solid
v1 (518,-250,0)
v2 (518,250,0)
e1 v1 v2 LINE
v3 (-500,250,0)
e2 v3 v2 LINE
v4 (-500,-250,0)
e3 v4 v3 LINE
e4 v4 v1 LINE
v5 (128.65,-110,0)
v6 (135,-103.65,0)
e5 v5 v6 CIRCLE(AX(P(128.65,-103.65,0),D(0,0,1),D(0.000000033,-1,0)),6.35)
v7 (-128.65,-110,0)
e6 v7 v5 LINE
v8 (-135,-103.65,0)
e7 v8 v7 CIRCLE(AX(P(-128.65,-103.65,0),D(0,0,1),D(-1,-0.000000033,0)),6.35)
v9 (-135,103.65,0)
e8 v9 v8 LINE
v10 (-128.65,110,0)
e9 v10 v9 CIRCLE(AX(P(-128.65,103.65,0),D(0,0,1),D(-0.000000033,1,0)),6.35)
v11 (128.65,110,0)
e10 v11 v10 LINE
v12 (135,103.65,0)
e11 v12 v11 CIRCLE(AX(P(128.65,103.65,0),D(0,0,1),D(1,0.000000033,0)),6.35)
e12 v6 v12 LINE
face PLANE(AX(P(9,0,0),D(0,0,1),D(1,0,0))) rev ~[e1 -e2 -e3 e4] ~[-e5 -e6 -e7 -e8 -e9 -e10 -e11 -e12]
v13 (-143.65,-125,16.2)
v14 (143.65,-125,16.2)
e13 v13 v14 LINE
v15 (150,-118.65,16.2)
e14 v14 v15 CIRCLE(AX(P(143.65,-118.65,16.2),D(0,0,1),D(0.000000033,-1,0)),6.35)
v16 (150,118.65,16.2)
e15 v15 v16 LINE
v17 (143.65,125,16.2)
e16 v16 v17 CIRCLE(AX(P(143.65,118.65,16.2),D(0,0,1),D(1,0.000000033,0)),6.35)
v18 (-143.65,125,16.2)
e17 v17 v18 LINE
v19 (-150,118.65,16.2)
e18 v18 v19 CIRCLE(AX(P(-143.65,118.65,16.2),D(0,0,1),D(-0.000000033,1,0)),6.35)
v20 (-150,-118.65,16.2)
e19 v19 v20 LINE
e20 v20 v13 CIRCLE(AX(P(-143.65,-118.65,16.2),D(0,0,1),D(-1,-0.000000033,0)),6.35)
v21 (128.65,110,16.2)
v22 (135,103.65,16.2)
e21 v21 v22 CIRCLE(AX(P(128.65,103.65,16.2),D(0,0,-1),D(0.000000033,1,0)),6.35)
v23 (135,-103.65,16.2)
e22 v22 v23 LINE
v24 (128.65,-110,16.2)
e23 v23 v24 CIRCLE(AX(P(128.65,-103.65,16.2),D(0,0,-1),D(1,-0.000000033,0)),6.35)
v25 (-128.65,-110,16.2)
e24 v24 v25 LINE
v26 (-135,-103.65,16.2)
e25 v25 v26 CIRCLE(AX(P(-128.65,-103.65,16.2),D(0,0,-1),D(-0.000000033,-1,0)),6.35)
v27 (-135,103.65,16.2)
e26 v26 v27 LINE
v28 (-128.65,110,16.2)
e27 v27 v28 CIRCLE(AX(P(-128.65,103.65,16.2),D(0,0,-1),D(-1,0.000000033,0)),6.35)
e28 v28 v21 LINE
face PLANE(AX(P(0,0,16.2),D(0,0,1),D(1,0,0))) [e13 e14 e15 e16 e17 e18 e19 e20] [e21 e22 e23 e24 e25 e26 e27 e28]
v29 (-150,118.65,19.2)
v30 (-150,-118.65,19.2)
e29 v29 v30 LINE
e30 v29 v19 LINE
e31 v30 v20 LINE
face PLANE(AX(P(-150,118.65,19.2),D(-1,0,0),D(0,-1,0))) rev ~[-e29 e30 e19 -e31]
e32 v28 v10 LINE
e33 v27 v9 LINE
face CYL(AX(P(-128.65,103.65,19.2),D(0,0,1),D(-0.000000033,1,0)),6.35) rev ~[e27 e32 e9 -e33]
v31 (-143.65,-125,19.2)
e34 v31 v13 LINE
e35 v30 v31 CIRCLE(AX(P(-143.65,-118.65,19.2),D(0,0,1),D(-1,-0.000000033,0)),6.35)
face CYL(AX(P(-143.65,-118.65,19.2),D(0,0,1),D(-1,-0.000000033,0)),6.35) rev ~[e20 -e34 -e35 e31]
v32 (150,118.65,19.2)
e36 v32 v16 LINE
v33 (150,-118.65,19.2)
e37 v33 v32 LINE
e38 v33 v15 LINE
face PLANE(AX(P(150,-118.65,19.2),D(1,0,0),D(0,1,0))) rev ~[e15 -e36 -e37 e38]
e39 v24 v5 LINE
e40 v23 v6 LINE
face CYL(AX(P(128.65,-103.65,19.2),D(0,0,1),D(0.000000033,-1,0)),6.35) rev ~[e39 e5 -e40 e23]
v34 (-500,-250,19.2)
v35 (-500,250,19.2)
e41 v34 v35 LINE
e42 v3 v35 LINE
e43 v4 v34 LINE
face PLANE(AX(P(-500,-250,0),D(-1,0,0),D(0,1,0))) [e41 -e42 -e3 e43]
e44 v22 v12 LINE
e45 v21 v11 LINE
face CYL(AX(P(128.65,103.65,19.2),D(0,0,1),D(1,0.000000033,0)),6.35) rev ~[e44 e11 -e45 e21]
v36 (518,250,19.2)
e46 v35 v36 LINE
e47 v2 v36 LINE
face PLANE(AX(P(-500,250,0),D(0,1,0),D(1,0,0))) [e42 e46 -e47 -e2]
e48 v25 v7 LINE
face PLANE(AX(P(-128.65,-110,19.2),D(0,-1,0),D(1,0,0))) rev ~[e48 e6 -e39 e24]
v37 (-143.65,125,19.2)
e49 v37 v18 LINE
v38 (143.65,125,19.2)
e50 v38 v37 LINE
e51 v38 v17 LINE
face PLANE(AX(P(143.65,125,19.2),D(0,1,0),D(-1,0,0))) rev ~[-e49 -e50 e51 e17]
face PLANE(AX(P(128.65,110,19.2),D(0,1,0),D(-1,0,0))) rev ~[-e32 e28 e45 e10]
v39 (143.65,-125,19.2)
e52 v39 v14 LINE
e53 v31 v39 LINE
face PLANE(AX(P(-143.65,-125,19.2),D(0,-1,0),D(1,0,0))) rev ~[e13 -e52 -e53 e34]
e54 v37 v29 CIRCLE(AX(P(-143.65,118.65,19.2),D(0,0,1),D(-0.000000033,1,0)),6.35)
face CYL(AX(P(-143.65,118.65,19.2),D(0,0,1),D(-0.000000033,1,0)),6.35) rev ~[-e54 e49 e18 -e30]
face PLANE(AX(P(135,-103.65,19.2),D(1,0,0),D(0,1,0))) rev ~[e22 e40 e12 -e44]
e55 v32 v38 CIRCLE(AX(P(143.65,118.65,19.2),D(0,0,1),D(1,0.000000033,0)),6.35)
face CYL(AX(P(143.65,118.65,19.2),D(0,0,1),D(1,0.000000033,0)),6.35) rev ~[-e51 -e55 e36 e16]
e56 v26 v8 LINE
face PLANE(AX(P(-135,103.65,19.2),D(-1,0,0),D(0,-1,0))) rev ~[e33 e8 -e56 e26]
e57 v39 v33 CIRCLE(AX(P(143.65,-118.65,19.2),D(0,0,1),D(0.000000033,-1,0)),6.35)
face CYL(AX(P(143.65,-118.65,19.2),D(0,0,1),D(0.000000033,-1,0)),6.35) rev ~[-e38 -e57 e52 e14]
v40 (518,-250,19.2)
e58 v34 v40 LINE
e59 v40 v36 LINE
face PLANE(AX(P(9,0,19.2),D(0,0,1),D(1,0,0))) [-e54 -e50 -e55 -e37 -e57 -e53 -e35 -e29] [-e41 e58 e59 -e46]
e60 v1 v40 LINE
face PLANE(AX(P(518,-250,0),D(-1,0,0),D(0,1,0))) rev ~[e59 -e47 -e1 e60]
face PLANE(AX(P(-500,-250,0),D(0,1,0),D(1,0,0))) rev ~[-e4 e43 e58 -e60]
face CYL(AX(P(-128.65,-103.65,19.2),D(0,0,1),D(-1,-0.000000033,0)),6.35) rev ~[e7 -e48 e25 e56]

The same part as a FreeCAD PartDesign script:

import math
import FreeCAD as App
import Part
import Sketcher

doc = App.newDocument("Part")
params = doc.addObject("Spreadsheet::Sheet", "Params")
for row, (alias, value) in enumerate([
    ("sketch1_width", "1018 mm"),
    ("sketch1_height", "500 mm"),
    ("pad1_length", "19.2 mm"),
    ("sketch2_radius", "6.35 mm"),
    ("sketch2_width", "287.3 mm"),
    ("sketch2_width2", "257.3 mm"),
    ("sketch2_height", "237.3 mm"),
    ("sketch2_height2", "207.3 mm"),
    ("pocket1_length", "3 mm"),
    ("sketch3_radius", "6.35 mm"),
    ("sketch3_width", "257.3 mm"),
    ("sketch3_height", "207.3 mm"),
], start=1):
    params.set(f"A{row}", alias)
    params.set(f"B{row}", "=" + value)
    params.setAlias(f"B{row}", alias)

body = doc.addObject("PartDesign::Body", "Body")

sketch1 = doc.addObject("Sketcher::SketchObject", "Sketch")
body.addObject(sketch1)
sketch1.AttachmentSupport = (doc.XY_Plane, [""])
sketch1.MapMode = "FlatFace"
sketch1.addGeometry([
    Part.LineSegment(App.Vector(-500, 250, 0), App.Vector(-500, -250, 0)),
    Part.LineSegment(App.Vector(-500, -250, 0), App.Vector(518, -250, 0)),
    Part.LineSegment(App.Vector(518, -250, 0), App.Vector(518, 250, 0)),
    Part.LineSegment(App.Vector(518, 250, 0), App.Vector(-500, 250, 0)),
], False)
sketch1.addConstraint([
    Sketcher.Constraint("Coincident", 0, 2, 1, 1),
    Sketcher.Constraint("Coincident", 1, 2, 2, 1),
    Sketcher.Constraint("Coincident", 2, 2, 3, 1),
    Sketcher.Constraint("Coincident", 3, 2, 0, 1),
    Sketcher.Constraint("Vertical", 0),
    Sketcher.Constraint("Horizontal", 1),
    Sketcher.Constraint("Vertical", 2),
    Sketcher.Constraint("Horizontal", 3),
    Sketcher.Constraint("DistanceX", 1, 1, 1, 2, 1018.0),
    Sketcher.Constraint("DistanceY", 0, 2, 0, 1, 500.0),
    Sketcher.Constraint("DistanceX", 0, 2, -1, 1, 500.0),
    Sketcher.Constraint("DistanceY", 0, 2, -1, 1, 250.0),
])
sketch1.setExpression("Constraints[8]", "Params.sketch1_width")
sketch1.setExpression("Constraints[9]", "Params.sketch1_height")
pad1 = doc.addObject("PartDesign::Pad", "Pad")
body.addObject(pad1)
pad1.Profile = sketch1
pad1.setExpression("Length", "Params.pad1_length")

sketch2 = doc.addObject("Sketcher::SketchObject", "Sketch001")
body.addObject(sketch2)
sketch2.AttachmentSupport = (doc.XY_Plane, [""])
sketch2.MapMode = "FlatFace"
sketch2.AttachmentOffset = App.Placement(App.Vector(0, 0, 19.2), App.Rotation())
sketch2.addGeometry([
    Part.ArcOfCircle(Part.Circle(App.Vector(144, 119, 0), App.Vector(0, 0, 1), 6), math.radians(0), math.radians(90)),
    Part.LineSegment(App.Vector(144, 125, 0), App.Vector(-144, 125, 0)),
    Part.ArcOfCircle(Part.Circle(App.Vector(-144, 119, 0), App.Vector(0, 0, 1), 6), math.radians(90), math.radians(180)),
    Part.LineSegment(App.Vector(-150, 119, 0), App.Vector(-150, -119, 0)),
    Part.ArcOfCircle(Part.Circle(App.Vector(-144, -119, 0), App.Vector(0, 0, 1), 6), math.radians(-180), math.radians(-90)),
    Part.LineSegment(App.Vector(-144, -125, 0), App.Vector(144, -125, 0)),
    Part.ArcOfCircle(Part.Circle(App.Vector(144, -119, 0), App.Vector(0, 0, 1), 6), math.radians(-90), math.radians(0)),
    Part.LineSegment(App.Vector(150, -119, 0), App.Vector(150, 119, 0)),
    Part.ArcOfCircle(Part.Circle(App.Vector(-129, -104, 0), App.Vector(0, 0, 1), 6), math.radians(-180), math.radians(-90)),
    Part.LineSegment(App.Vector(-135, -104, 0), App.Vector(-135, 104, 0)),
    Part.ArcOfCircle(Part.Circle(App.Vector(-129, 104, 0), App.Vector(0, 0, 1), 6), math.radians(90), math.radians(180)),
    Part.LineSegment(App.Vector(-129, 110, 0), App.Vector(129, 110, 0)),
    Part.ArcOfCircle(Part.Circle(App.Vector(129, 104, 0), App.Vector(0, 0, 1), 6), math.radians(0), math.radians(90)),
    Part.LineSegment(App.Vector(135, 104, 0), App.Vector(135, -104, 0)),
    Part.ArcOfCircle(Part.Circle(App.Vector(129, -104, 0), App.Vector(0, 0, 1), 6), math.radians(-90), math.radians(0)),
    Part.LineSegment(App.Vector(129, -110, 0), App.Vector(-129, -110, 0)),
], False)
sketch2.addConstraint([
    Sketcher.Constraint("Tangent", 0, 2, 1, 1),
    Sketcher.Constraint("Tangent", 1, 2, 2, 1),
    Sketcher.Constraint("Tangent", 2, 2, 3, 1),
    Sketcher.Constraint("Tangent", 3, 2, 4, 1),
    Sketcher.Constraint("Tangent", 4, 2, 5, 1),
    Sketcher.Constraint("Tangent", 5, 2, 6, 1),
    Sketcher.Constraint("Tangent", 6, 2, 7, 1),
    Sketcher.Constraint("Tangent", 7, 2, 0, 1),
    Sketcher.Constraint("Tangent", 8, 1, 9, 1),
    Sketcher.Constraint("Tangent", 9, 2, 10, 2),
    Sketcher.Constraint("Tangent", 10, 1, 11, 1),
    Sketcher.Constraint("Tangent", 11, 2, 12, 2),
    Sketcher.Constraint("Tangent", 12, 1, 13, 1),
    Sketcher.Constraint("Tangent", 13, 2, 14, 2),
    Sketcher.Constraint("Tangent", 14, 1, 15, 1),
    Sketcher.Constraint("Tangent", 15, 2, 8, 2),
    Sketcher.Constraint("Horizontal", 1),
    Sketcher.Constraint("Vertical", 3),
    Sketcher.Constraint("Horizontal", 5),
    Sketcher.Constraint("Vertical", 7),
    Sketcher.Constraint("Vertical", 9),
    Sketcher.Constraint("Horizontal", 11),
    Sketcher.Constraint("Vertical", 13),
    Sketcher.Constraint("Horizontal", 15),
    Sketcher.Constraint("Equal", 0, 2),
    Sketcher.Constraint("Equal", 2, 4),
    Sketcher.Constraint("Equal", 4, 6),
    Sketcher.Constraint("Equal", 6, 8),
    Sketcher.Constraint("Equal", 8, 10),
    Sketcher.Constraint("Equal", 10, 12),
    Sketcher.Constraint("Equal", 12, 14),
    Sketcher.Constraint("Symmetric", 0, 3, 4, 3, -1, 1),
    Sketcher.Constraint("Symmetric", 8, 3, 12, 3, -1, 1),
    Sketcher.Constraint("Radius", 0, 6.35),
    Sketcher.Constraint("DistanceX", 1, 2, 1, 1, 287.3),
    Sketcher.Constraint("DistanceX", 11, 1, 11, 2, 257.3),
    Sketcher.Constraint("DistanceY", 3, 2, 3, 1, 237.3),
    Sketcher.Constraint("DistanceY", 9, 1, 9, 2, 207.3),
])
sketch2.setExpression("Constraints[33]", "Params.sketch2_radius")
sketch2.setExpression("Constraints[34]", "Params.sketch2_width")
sketch2.setExpression("Constraints[35]", "Params.sketch2_width2")
sketch2.setExpression("Constraints[36]", "Params.sketch2_height")
sketch2.setExpression("Constraints[37]", "Params.sketch2_height2")
pocket1 = doc.addObject("PartDesign::Pocket", "Pocket")
body.addObject(pocket1)
pocket1.Profile = sketch2
pocket1.setExpression("Length", "Params.pocket1_length")

sketch3 = doc.addObject("Sketcher::SketchObject", "Sketch002")
body.addObject(sketch3)
sketch3.AttachmentSupport = (doc.XY_Plane, [""])
sketch3.MapMode = "FlatFace"
sketch3.AttachmentOffset = App.Placement(App.Vector(0, 0, 19.2), App.Rotation())
sketch3.addGeometry([
    Part.ArcOfCircle(Part.Circle(App.Vector(-129, 104, 0), App.Vector(0, 0, 1), 6), math.radians(90), math.radians(180)),
    Part.LineSegment(App.Vector(-135, 104, 0), App.Vector(-135, -104, 0)),
    Part.ArcOfCircle(Part.Circle(App.Vector(-129, -104, 0), App.Vector(0, 0, 1), 6), math.radians(-180), math.radians(-90)),
    Part.LineSegment(App.Vector(-129, -110, 0), App.Vector(129, -110, 0)),
    Part.ArcOfCircle(Part.Circle(App.Vector(129, -104, 0), App.Vector(0, 0, 1), 6), math.radians(-90), math.radians(0)),
    Part.LineSegment(App.Vector(135, -104, 0), App.Vector(135, 104, 0)),
    Part.ArcOfCircle(Part.Circle(App.Vector(129, 104, 0), App.Vector(0, 0, 1), 6), math.radians(0), math.radians(90)),
    Part.LineSegment(App.Vector(129, 110, 0), App.Vector(-129, 110, 0)),
], False)
sketch3.addConstraint([
    Sketcher.Constraint("Tangent", 0, 2, 1, 1),
    Sketcher.Constraint("Tangent", 1, 2, 2, 1),
    Sketcher.Constraint("Tangent", 2, 2, 3, 1),
    Sketcher.Constraint("Tangent", 3, 2, 4, 1),
    Sketcher.Constraint("Tangent", 4, 2, 5, 1),
    Sketcher.Constraint("Tangent", 5, 2, 6, 1),
    Sketcher.Constraint("Tangent", 6, 2, 7, 1),
    Sketcher.Constraint("Tangent", 7, 2, 0, 1),
    Sketcher.Constraint("Vertical", 1),
    Sketcher.Constraint("Horizontal", 3),
    Sketcher.Constraint("Vertical", 5),
    Sketcher.Constraint("Horizontal", 7),
    Sketcher.Constraint("Equal", 0, 2),
    Sketcher.Constraint("Equal", 2, 4),
    Sketcher.Constraint("Equal", 4, 6),
    Sketcher.Constraint("Symmetric", 0, 3, 4, 3, -1, 1),
    Sketcher.Constraint("Radius", 0, 6.35),
    Sketcher.Constraint("DistanceX", 3, 1, 3, 2, 257.3),
    Sketcher.Constraint("DistanceY", 1, 2, 1, 1, 207.3),
])
sketch3.setExpression("Constraints[16]", "Params.sketch3_radius")
sketch3.setExpression("Constraints[17]", "Params.sketch3_width")
sketch3.setExpression("Constraints[18]", "Params.sketch3_height")
pocket2 = doc.addObject("PartDesign::Pocket", "Pocket001")
body.addObject(pocket2)
pocket2.Profile = sketch3
pocket2.Type = "ThroughAll"

doc.recompute()
